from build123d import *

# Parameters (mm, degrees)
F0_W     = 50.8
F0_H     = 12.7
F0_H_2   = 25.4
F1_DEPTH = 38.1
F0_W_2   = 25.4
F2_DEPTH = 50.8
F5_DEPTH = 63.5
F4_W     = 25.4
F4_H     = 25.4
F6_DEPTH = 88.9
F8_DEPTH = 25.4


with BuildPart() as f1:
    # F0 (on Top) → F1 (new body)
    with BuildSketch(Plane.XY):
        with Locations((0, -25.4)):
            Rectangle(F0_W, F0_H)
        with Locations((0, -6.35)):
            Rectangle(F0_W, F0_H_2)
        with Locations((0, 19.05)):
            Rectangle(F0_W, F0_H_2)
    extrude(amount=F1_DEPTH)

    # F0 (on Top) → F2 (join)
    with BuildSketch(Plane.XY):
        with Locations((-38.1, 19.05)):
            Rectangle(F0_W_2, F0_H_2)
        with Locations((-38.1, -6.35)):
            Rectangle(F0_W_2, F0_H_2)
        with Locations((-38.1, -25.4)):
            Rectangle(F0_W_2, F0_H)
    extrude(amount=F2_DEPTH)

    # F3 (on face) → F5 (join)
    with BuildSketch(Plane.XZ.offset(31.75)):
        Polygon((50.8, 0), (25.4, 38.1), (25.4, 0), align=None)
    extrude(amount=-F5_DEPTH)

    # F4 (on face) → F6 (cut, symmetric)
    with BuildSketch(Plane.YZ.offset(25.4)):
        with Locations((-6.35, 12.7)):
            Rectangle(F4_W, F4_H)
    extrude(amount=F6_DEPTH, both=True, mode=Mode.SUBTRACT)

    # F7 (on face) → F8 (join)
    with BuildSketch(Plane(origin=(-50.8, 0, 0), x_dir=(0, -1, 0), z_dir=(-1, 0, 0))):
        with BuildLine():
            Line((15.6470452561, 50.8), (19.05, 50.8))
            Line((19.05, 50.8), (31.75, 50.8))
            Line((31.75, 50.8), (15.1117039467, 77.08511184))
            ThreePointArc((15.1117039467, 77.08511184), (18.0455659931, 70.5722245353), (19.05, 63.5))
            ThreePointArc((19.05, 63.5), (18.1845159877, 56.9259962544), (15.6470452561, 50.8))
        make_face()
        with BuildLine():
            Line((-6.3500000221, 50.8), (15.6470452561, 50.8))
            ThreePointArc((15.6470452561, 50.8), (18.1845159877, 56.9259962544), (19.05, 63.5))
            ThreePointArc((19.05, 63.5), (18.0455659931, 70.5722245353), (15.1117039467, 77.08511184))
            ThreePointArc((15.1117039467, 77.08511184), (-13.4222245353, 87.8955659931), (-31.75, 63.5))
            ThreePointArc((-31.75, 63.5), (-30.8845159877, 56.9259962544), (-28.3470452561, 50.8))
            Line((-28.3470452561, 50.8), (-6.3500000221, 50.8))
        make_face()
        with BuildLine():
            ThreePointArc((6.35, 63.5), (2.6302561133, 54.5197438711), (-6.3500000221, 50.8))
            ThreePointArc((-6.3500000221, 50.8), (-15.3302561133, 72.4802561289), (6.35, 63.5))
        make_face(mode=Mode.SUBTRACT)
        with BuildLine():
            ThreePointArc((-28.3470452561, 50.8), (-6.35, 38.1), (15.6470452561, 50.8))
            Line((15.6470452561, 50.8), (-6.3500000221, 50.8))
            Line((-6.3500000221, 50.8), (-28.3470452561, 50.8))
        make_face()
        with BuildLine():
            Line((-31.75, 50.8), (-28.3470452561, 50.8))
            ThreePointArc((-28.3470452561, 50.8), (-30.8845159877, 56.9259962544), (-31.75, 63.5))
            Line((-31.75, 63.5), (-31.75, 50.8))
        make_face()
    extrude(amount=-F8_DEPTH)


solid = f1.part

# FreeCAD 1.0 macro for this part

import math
import FreeCAD as App
import Part
import Sketcher
Q = App.Units.Quantity


def add_polygon(sketch, points):
    """Adds a closed chain of lines whose ends are joined by coincident constraints."""
    first, n = sketch.GeometryCount, len(points)
    for a, b in zip(points, points[1:] + points[:1]):
        sketch.addGeometry(Part.LineSegment(App.Vector(*a, 0), App.Vector(*b, 0)), False)
    for i in range(n):
        sketch.addConstraint(Sketcher.Constraint("Coincident", first + i, 2, first + (i + 1) % n, 1))

doc = App.newDocument("Part")
params = doc.addObject("Spreadsheet::Sheet", "Params")
for row, (alias, value) in enumerate([
    ("sketch1_width", "2 in"),
    ("sketch1_height", "2.5 in"),
    ("pad1_length", "1.5 in"),
    ("sketch2_width", "1 in"),
    ("sketch2_height", "2.5 in"),
    ("pad2_length", "2 in"),
    ("sketch3_width", "1 in"),
    ("sketch3_height", "1.5 in"),
    ("pad3_length", "2.5 in"),
    ("sketch4_width", "1 in"),
    ("pocket1_length", "7 in"),
    ("sketch5_radius", "1 in"),
    ("sketch5_radius2", "0.5 in"),
    ("pad4_length", "1 in"),
], start=1):
    params.set(f"A{row}", alias)
    params.set(f"B{row}", "=" + value)
    params.setAlias(f"B{row}", alias)

body = doc.addObject("PartDesign::Body", "Body")

# Sketch on XY plane
sketch1 = body.newObject("Sketcher::SketchObject", "Sketch")
sketch1.AttachmentSupport = (doc.getObject("XY_Plane"), [""])
sketch1.MapMode = "FlatFace"
add_polygon(sketch1, [(-25.4, -31.75), (25.4, -31.75), (25.4, 31.75), (-25.4, 31.75)])  # lines 0-3
sketch1.addConstraint(Sketcher.Constraint("Horizontal", 0))
sketch1.addConstraint(Sketcher.Constraint("Vertical", 1))
sketch1.addConstraint(Sketcher.Constraint("Horizontal", 2))
sketch1.addConstraint(Sketcher.Constraint("Vertical", 3))
sketch1.addConstraint(Sketcher.Constraint("Symmetric", 0, 2, 2, 2, -1, 1))
sketch1.addConstraint(Sketcher.Constraint("DistanceX", 0, 1, 0, 2, Q("2 in")))
sketch1.addConstraint(Sketcher.Constraint("DistanceY", 1, 1, 1, 2, Q("2.5 in")))
sketch1.setExpression("Constraints[9]", "Params.sketch1_width")
sketch1.setExpression("Constraints[10]", "Params.sketch1_height")
pad1 = body.newObject("PartDesign::Pad", "Pad")
pad1.Profile = sketch1
pad1.setExpression("Length", "Params.pad1_length")

# Sketch on XY plane
sketch2 = body.newObject("Sketcher::SketchObject", "Sketch001")
sketch2.AttachmentSupport = (doc.getObject("XY_Plane"), [""])
sketch2.MapMode = "FlatFace"
add_polygon(sketch2, [(-50.8, 31.75), (-50.8, -31.75), (-25.4, -31.75), (-25.4, 31.75)])  # lines 0-3
sketch2.addConstraint(Sketcher.Constraint("Vertical", 0))
sketch2.addConstraint(Sketcher.Constraint("Horizontal", 1))
sketch2.addConstraint(Sketcher.Constraint("Vertical", 2))
sketch2.addConstraint(Sketcher.Constraint("Horizontal", 3))
sketch2.addConstraint(Sketcher.Constraint("DistanceX", 1, 1, 1, 2, Q("1 in")))
sketch2.addConstraint(Sketcher.Constraint("DistanceY", 0, 2, 0, 1, Q("2.5 in")))
sketch2.addConstraint(Sketcher.Constraint("DistanceX", 0, 2, -1, 1, Q("2 in")))
sketch2.addConstraint(Sketcher.Constraint("DistanceY", 0, 2, -1, 1, Q("1.25 in")))
sketch2.setExpression("Constraints[8]", "Params.sketch2_width")
sketch2.setExpression("Constraints[9]", "Params.sketch2_height")
pad2 = body.newObject("PartDesign::Pad", "Pad001")
pad2.Profile = sketch2
pad2.setExpression("Length", "Params.pad2_length")

# Sketch on XZ plane
sketch3 = body.newObject("Sketcher::SketchObject", "Sketch002")
sketch3.AttachmentSupport = (doc.getObject("XZ_Plane"), [""])
sketch3.MapMode = "FlatFace"
sketch3.AttachmentOffset = App.Placement(App.Vector(0, 0, 1.25 * 25.4), App.Rotation())
add_polygon(sketch3, [(50.8, 0), (25.4, 38.1), (25.4, 0)])  # lines 0-2
sketch3.addConstraint(Sketcher.Constraint("Vertical", 1))
sketch3.addConstraint(Sketcher.Constraint("Horizontal", 2))
sketch3.addConstraint(Sketcher.Constraint("PointOnObject", 1, 2, -1))
sketch3.addConstraint(Sketcher.Constraint("DistanceX", 2, 1, 2, 2, Q("1 in")))
sketch3.addConstraint(Sketcher.Constraint("DistanceY", 1, 2, 1, 1, Q("1.5 in")))
sketch3.addConstraint(Sketcher.Constraint("DistanceX", -1, 1, 0, 2, Q("1 in")))
sketch3.setExpression("Constraints[6]", "Params.sketch3_width")
sketch3.setExpression("Constraints[7]", "Params.sketch3_height")
pad3 = body.newObject("PartDesign::Pad", "Pad002")
pad3.Profile = sketch3
pad3.setExpression("Length", "Params.pad3_length")
pad3.Reversed = True

# Sketch on YZ plane
sketch4 = body.newObject("Sketcher::SketchObject", "Sketch003")
sketch4.AttachmentSupport = (doc.getObject("YZ_Plane"), [""])
sketch4.MapMode = "FlatFace"
sketch4.AttachmentOffset = App.Placement(App.Vector(0, 0, 1 * 25.4), App.Rotation())
add_polygon(sketch4, [(-19.05, 25.4), (-19.05, 0), (6.35, 0), (6.35, 25.4)])  # lines 0-3
sketch4.addConstraint(Sketcher.Constraint("Vertical", 0))
sketch4.addConstraint(Sketcher.Constraint("Horizontal", 1))
sketch4.addConstraint(Sketcher.Constraint("Vertical", 2))
sketch4.addConstraint(Sketcher.Constraint("Horizontal", 3))
sketch4.addConstraint(Sketcher.Constraint("PointOnObject", 0, 2, -1))
sketch4.addConstraint(Sketcher.Constraint("Equal", 3, 0))
sketch4.addConstraint(Sketcher.Constraint("DistanceX", 1, 1, 1, 2, Q("1 in")))
sketch4.addConstraint(Sketcher.Constraint("DistanceX", 0, 2, -1, 1, Q("0.75 in")))
sketch4.setExpression("Constraints[10]", "Params.sketch4_width")
pocket1 = body.newObject("PartDesign::Pocket", "Pocket")
pocket1.Profile = sketch4
pocket1.setExpression("Length", "Params.pocket1_length")
pocket1.Midplane = True

# Sketch on YZ plane
sketch5 = body.newObject("Sketcher::SketchObject", "Sketch004")
sketch5.AttachmentSupport = (doc.getObject("YZ_Plane"), [""])
sketch5.MapMode = "FlatFace"
sketch5.AttachmentOffset = App.Placement(App.Vector(0, 0, -2 * 25.4), App.Rotation())
sketch5.addGeometry(Part.ArcOfCircle(Part.Circle(App.Vector(6.35, 63.5, 0), App.Vector(0, 0, 1), 25.4), math.radians(-150), math.radians(-30)), False)
sketch5.addGeometry(Part.LineSegment(App.Vector(-15.647045, 50.8, 0), App.Vector(-31.75, 50.8, 0)), False)
sketch5.addGeometry(Part.LineSegment(App.Vector(-31.75, 50.8, 0), App.Vector(-15.111704, 77.085112, 0)), False)
sketch5.addGeometry(Part.ArcOfCircle(Part.Circle(App.Vector(6.35, 63.5, 0), App.Vector(0, 0, 1), 25.4), math.radians(0), math.radians(147.666469)), False)
sketch5.addGeometry(Part.LineSegment(App.Vector(31.75, 63.5, 0), App.Vector(31.75, 50.8, 0)), False)
sketch5.addGeometry(Part.LineSegment(App.Vector(31.75, 50.8, 0), App.Vector(28.347045, 50.8, 0)), False)
sketch5.addGeometry(Part.ArcOfCircle(Part.Circle(App.Vector(6.35, 63.5, 0), App.Vector(0, 0, 1), 12.7), math.radians(180), math.radians(270)), False)
sketch5.addGeometry(Part.ArcOfCircle(Part.Circle(App.Vector(6.35, 63.5, 0), App.Vector(0, 0, 1), 12.7), math.radians(-90), math.radians(180)), False)
sketch5.addConstraint(Sketcher.Constraint("Coincident", 0, 1, 1, 1))
sketch5.addConstraint(Sketcher.Constraint("Coincident", 1, 2, 2, 1))
sketch5.addConstraint(Sketcher.Constraint("Tangent", 2, 2, 3, 2))
sketch5.addConstraint(Sketcher.Constraint("Tangent", 3, 1, 4, 1))
sketch5.addConstraint(Sketcher.Constraint("Coincident", 4, 2, 5, 1))
sketch5.addConstraint(Sketcher.Constraint("Coincident", 5, 2, 0, 2))
sketch5.addConstraint(Sketcher.Constraint("Tangent", 6, 1, 7, 2))
sketch5.addConstraint(Sketcher.Constraint("Coincident", 7, 1, 6, 2))
sketch5.addConstraint(Sketcher.Constraint("Horizontal", 1))
sketch5.addConstraint(Sketcher.Constraint("Vertical", 4))
sketch5.addConstraint(Sketcher.Constraint("Horizontal", 5))
sketch5.addConstraint(Sketcher.Constraint("Coincident", 3, 3, 0, 3))
sketch5.addConstraint(Sketcher.Constraint("Coincident", 6, 3, 0, 3))
sketch5.addConstraint(Sketcher.Constraint("Equal", 0, 3))
sketch5.addConstraint(Sketcher.Constraint("Symmetric", 1, 2, 4, 2, -2))
sketch5.addConstraint(Sketcher.Constraint("Horizontal", 3, 1, 6, 1))
sketch5.addConstraint(Sketcher.Constraint("Horizontal", 5, 2, 7, 1))
sketch5.addConstraint(Sketcher.Constraint("Vertical", 6, 3, 7, 1))
sketch5.addConstraint(Sketcher.Constraint("Radius", 0, Q("1 in")))
sketch5.addConstraint(Sketcher.Constraint("Radius", 6, Q("0.5 in")))
sketch5.addConstraint(Sketcher.Constraint("DistanceY", -1, 1, 0, 1, Q("2 in")))
sketch5.addConstraint(Sketcher.Constraint("DistanceX", 1, 2, 0, 3, Q("1.5 in")))
sketch5.setExpression("Constraints[18]", "Params.sketch5_radius")
sketch5.setExpression("Constraints[19]", "Params.sketch5_radius2")
pad4 = body.newObject("PartDesign::Pad", "Pad003")
pad4.Profile = sketch5
pad4.setExpression("Length", "Params.pad4_length")

doc.recompute()
